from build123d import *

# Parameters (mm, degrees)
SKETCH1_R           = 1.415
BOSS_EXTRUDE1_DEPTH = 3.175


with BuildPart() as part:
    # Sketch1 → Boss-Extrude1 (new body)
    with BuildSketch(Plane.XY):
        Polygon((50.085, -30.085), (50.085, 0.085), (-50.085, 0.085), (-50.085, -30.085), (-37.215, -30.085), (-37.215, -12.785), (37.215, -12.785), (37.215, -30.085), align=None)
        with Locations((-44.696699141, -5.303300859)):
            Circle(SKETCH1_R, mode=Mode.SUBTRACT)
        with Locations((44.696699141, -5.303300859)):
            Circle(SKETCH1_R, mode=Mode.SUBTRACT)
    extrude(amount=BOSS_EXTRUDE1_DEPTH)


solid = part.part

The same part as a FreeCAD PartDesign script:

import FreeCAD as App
import Part
import Sketcher
from FreeCAD import Vector
Q = App.Units.Quantity

doc = App.newDocument("Part")
body = doc.addObject("PartDesign::Body", "Body")

# Sketch on XY plane
sketch1 = body.newObject("Sketcher::SketchObject", "Sketch")
sketch1.AttachmentSupport = (doc.getObject("XY_Plane"), [""])
sketch1.MapMode = "FlatFace"
sketch1.addGeometry(Part.LineSegment(Vector(50.1, -30.1, 0), Vector(50.1, 0.1, 0)), False)
sketch1.addGeometry(Part.LineSegment(Vector(50.1, 0.1, 0), Vector(-50.1, 0.1, 0)), False)
sketch1.addGeometry(Part.LineSegment(Vector(-50.1, 0.1, 0), Vector(-50.1, -30.1, 0)), False)
sketch1.addGeometry(Part.LineSegment(Vector(-50.1, -30.1, 0), Vector(-37.2, -30.1, 0)), False)
sketch1.addGeometry(Part.LineSegment(Vector(-37.2, -30.1, 0), Vector(-37.2, -12.8, 0)), False)
sketch1.addGeometry(Part.LineSegment(Vector(-37.2, -12.8, 0), Vector(37.2, -12.8, 0)), False)
sketch1.addGeometry(Part.LineSegment(Vector(37.2, -12.8, 0), Vector(37.2, -30.1, 0)), False)
sketch1.addGeometry(Part.LineSegment(Vector(37.2, -30.1, 0), Vector(50.1, -30.1, 0)), False)
sketch1.addGeometry(Part.Circle(Vector(-44.7, -5.3, 0), Vector(0, 0, 1), 1.4), False)
sketch1.addGeometry(Part.Circle(Vector(44.7, -5.3, 0), Vector(0, 0, 1), 1.4), False)
sketch1.addConstraint(Sketcher.Constraint("Coincident", 0, 2, 1, 1))
sketch1.addConstraint(Sketcher.Constraint("Coincident", 1, 2, 2, 1))
sketch1.addConstraint(Sketcher.Constraint("Coincident", 2, 2, 3, 1))
sketch1.addConstraint(Sketcher.Constraint("Coincident", 3, 2, 4, 1))
sketch1.addConstraint(Sketcher.Constraint("Coincident", 4, 2, 5, 1))
sketch1.addConstraint(Sketcher.Constraint("Coincident", 5, 2, 6, 1))
sketch1.addConstraint(Sketcher.Constraint("Coincident", 6, 2, 7, 1))
sketch1.addConstraint(Sketcher.Constraint("Coincident", 7, 2, 0, 1))
sketch1.addConstraint(Sketcher.Constraint("Vertical", 0))
sketch1.addConstraint(Sketcher.Constraint("Horizontal", 1))
sketch1.addConstraint(Sketcher.Constraint("Vertical", 2))
sketch1.addConstraint(Sketcher.Constraint("Horizontal", 3))
sketch1.addConstraint(Sketcher.Constraint("Vertical", 4))
sketch1.addConstraint(Sketcher.Constraint("Horizontal", 5))
sketch1.addConstraint(Sketcher.Constraint("Vertical", 6))
sketch1.addConstraint(Sketcher.Constraint("Horizontal", 7))
sketch1.addConstraint(Sketcher.Constraint("Equal", 8, 9))
sketch1.addConstraint(Sketcher.Constraint("Symmetric", 8, 3, 9, 3, -2))
sketch1.addConstraint(Sketcher.Constraint("Symmetric", 3, 2, 6, 2, -2))
sketch1.addConstraint(Sketcher.Constraint("Equal", 3, 7))
sketch1.addConstraint(Sketcher.Constraint("Diameter", 8, Q("2.83 mm")))
sketch1.addConstraint(Sketcher.Constraint("DistanceY", 4, 1, 4, 2, Q("17.3 mm")))
sketch1.addConstraint(Sketcher.Constraint("DistanceX", 1, 2, 1, 1, Q("100.17 mm")))
sketch1.addConstraint(Sketcher.Constraint("DistanceX", 3, 1, 3, 2, Q("12.87 mm")))
sketch1.addConstraint(Sketcher.Constraint("DistanceY", 0, 1, 0, 2, Q("30.17 mm")))
sketch1.addConstraint(Sketcher.Constraint("DistanceY", -1, 1, 0, 2, Q("0.085 mm")))
sketch1.addConstraint(Sketcher.Constraint("DistanceX", 8, 3, -1, 1, Q("44.696699 mm")))
sketch1.addConstraint(Sketcher.Constraint("DistanceY", 8, 3, -1, 1, Q("5.303301 mm")))
pad1 = body.newObject("PartDesign::Pad", "Pad")
pad1.Profile = sketch1
pad1.Length = 3.175

doc.recompute()
